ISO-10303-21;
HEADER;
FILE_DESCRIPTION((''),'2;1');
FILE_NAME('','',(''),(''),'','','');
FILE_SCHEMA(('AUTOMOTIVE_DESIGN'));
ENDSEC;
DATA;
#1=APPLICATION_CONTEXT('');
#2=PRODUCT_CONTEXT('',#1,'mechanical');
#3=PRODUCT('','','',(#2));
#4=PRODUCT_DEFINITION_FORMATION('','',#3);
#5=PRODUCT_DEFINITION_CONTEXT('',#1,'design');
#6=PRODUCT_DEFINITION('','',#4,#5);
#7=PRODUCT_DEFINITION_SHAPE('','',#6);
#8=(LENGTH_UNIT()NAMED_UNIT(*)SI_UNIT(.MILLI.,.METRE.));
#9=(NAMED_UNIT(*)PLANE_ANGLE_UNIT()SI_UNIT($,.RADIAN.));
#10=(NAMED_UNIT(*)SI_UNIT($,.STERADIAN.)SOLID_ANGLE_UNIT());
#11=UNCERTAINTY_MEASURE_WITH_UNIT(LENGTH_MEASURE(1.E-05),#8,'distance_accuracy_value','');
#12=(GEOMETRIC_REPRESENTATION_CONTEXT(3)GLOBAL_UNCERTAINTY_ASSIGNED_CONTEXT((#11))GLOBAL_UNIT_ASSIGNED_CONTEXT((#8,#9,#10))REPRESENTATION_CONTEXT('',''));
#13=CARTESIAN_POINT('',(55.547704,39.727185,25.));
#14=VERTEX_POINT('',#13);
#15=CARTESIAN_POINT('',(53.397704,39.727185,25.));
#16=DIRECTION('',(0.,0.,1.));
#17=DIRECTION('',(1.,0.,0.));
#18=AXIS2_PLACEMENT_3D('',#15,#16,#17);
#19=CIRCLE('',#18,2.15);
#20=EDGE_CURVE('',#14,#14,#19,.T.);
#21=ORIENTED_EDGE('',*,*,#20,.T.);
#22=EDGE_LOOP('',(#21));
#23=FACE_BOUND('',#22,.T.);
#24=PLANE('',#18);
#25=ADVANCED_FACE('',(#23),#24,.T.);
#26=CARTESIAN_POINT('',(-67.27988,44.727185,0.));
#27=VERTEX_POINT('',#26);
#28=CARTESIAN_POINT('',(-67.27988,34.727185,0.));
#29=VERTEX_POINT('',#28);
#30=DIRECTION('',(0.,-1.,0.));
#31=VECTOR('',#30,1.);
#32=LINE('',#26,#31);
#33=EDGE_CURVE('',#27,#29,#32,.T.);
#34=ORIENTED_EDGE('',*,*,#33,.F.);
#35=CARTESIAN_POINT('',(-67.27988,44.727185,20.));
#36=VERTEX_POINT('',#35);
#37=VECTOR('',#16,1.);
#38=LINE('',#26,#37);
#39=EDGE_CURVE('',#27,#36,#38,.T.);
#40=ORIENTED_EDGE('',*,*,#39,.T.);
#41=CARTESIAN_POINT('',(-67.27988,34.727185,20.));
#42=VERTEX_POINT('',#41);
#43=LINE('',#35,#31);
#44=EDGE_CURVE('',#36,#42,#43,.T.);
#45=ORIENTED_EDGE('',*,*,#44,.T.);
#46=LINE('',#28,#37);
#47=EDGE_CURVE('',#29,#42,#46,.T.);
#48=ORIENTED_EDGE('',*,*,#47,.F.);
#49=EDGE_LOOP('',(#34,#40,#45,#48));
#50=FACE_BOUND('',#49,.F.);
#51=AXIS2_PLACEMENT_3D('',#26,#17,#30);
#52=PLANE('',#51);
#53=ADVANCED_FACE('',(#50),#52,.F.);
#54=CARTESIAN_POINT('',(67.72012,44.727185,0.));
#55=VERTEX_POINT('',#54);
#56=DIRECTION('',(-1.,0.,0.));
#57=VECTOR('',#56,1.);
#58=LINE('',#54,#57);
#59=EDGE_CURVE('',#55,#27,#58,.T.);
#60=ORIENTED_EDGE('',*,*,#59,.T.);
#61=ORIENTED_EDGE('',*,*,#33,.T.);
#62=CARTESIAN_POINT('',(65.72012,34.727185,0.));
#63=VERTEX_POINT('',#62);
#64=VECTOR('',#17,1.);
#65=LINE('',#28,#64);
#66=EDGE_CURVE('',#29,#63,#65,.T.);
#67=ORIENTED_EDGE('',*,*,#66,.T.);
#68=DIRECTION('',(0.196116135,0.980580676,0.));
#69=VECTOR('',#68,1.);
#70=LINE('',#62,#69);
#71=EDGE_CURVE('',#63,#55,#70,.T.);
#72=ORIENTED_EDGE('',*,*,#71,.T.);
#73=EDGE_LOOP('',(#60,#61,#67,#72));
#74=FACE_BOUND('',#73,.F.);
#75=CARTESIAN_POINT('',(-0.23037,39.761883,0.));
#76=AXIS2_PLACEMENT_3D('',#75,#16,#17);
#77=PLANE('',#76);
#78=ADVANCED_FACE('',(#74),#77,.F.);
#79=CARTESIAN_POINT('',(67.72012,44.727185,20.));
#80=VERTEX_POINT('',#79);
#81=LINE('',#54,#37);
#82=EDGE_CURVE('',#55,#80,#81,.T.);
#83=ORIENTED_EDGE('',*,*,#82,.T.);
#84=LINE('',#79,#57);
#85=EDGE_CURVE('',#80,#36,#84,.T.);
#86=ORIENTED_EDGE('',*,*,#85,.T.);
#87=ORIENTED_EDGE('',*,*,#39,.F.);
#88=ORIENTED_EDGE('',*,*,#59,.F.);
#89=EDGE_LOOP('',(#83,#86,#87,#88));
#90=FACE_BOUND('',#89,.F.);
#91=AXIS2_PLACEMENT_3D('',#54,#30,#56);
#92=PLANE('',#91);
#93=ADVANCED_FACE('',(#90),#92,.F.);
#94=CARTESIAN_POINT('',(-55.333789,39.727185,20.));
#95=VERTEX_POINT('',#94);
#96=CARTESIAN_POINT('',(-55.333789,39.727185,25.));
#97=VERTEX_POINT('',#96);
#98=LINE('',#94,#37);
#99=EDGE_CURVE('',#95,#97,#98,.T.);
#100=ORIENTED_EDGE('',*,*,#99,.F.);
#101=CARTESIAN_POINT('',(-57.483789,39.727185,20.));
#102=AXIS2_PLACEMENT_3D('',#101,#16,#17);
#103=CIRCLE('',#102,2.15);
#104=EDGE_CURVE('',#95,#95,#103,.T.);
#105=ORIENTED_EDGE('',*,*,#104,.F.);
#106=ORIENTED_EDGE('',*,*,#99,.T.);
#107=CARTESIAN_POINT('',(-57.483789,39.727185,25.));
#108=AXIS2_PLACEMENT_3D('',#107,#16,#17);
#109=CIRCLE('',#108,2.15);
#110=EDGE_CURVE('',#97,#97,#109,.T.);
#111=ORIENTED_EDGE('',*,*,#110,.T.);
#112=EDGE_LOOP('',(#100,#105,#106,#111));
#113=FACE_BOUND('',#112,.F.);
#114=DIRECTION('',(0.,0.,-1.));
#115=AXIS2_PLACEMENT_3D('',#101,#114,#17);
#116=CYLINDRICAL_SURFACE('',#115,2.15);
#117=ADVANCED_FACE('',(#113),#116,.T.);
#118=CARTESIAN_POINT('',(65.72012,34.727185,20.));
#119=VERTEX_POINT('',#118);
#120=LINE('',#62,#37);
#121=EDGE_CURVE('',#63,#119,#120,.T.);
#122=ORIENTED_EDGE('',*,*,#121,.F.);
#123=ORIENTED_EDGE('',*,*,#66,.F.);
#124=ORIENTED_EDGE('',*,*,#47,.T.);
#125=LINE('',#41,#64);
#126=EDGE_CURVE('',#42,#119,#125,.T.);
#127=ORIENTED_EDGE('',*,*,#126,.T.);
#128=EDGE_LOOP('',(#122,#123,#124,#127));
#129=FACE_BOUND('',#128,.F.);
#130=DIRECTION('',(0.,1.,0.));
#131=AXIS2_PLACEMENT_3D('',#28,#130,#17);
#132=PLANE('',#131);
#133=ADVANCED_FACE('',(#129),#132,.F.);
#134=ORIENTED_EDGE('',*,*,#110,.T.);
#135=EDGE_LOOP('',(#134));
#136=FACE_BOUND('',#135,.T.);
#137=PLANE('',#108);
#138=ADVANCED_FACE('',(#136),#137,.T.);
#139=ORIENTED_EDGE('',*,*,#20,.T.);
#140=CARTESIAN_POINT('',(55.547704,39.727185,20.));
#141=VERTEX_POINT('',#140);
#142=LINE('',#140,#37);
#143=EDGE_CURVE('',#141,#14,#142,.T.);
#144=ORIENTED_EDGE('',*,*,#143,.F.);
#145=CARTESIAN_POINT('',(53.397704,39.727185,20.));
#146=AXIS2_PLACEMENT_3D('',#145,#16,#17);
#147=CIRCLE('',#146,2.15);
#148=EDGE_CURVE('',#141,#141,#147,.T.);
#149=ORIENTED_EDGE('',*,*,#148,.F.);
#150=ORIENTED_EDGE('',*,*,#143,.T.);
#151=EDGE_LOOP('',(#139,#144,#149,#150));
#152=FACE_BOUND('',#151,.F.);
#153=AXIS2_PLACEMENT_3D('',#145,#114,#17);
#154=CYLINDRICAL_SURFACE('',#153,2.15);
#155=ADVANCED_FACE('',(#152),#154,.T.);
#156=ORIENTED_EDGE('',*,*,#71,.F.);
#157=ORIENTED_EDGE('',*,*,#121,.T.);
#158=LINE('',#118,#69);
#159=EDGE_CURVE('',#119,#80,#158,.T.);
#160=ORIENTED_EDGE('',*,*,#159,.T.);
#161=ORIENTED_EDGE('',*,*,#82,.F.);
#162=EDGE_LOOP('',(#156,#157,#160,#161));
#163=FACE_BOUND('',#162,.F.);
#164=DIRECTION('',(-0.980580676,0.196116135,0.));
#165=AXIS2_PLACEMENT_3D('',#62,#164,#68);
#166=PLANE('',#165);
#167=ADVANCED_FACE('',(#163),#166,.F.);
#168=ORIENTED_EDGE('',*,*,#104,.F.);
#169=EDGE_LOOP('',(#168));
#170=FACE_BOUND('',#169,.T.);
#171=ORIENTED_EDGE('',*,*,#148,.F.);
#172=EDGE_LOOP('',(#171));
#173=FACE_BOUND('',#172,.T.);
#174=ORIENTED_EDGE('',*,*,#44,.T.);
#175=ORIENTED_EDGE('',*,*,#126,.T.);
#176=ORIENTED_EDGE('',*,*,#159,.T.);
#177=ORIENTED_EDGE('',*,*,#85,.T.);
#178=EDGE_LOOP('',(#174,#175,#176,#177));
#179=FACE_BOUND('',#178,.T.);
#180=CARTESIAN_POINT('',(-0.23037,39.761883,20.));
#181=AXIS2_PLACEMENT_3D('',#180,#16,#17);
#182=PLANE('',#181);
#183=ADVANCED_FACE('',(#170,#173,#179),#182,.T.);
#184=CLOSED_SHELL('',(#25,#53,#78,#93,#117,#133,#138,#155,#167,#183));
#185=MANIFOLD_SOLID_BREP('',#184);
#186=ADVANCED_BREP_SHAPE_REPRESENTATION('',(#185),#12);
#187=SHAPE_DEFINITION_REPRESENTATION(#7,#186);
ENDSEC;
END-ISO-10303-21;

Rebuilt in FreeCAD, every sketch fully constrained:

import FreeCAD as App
import Part
import Sketcher
from FreeCAD import Vector
Q = App.Units.Quantity


def add_polygon(sketch, points):
    """Adds a closed chain of lines whose ends are joined by coincident constraints."""
    first, n = sketch.GeometryCount, len(points)
    for a, b in zip(points, points[1:] + points[:1]):
        sketch.addGeometry(Part.LineSegment(App.Vector(*a, 0), App.Vector(*b, 0)), False)
    for i in range(n):
        sketch.addConstraint(Sketcher.Constraint("Coincident", first + i, 2, first + (i + 1) % n, 1))

doc = App.newDocument("Part")
body = doc.addObject("PartDesign::Body", "Body")

sketch1 = body.newObject("Sketcher::SketchObject", "Sketch")
sketch1.AttachmentSupport = (doc.getObject("XY_Plane"), [""])
sketch1.MapMode = "FlatFace"
add_polygon(sketch1, [(68, 45), (-67, 45), (-67, 35), (66, 35)])
sketch1.addConstraint([
    Sketcher.Constraint("Horizontal", 0),
    Sketcher.Constraint("Vertical", 1),
    Sketcher.Constraint("Horizontal", 2),
    Sketcher.Constraint("DistanceX", 0, 2, 0, 1, Q("135 mm")),
    Sketcher.Constraint("DistanceX", 2, 1, 2, 2, Q("133 mm")),
    Sketcher.Constraint("DistanceY", 1, 2, 1, 1, Q("10 mm")),
    Sketcher.Constraint("DistanceX", 0, 2, -1, 1, Q("67.27988 mm")),
    Sketcher.Constraint("DistanceY", -1, 1, 0, 2, Q("44.727185 mm")),
])
pad1 = body.newObject("PartDesign::Pad", "Pad")
pad1.Profile = sketch1
pad1.Length = 20

sketch2 = body.newObject("Sketcher::SketchObject", "Sketch001")
sketch2.AttachmentSupport = (doc.getObject("XY_Plane"), [""])
sketch2.MapMode = "FlatFace"
sketch2.AttachmentOffset = App.Placement(Vector(0, 0, 20), App.Rotation())
sketch2.addGeometry([
    Part.Circle(Vector(-57.5, 39.7, 0), Vector(0, 0, 1), 2.1),
    Part.Circle(Vector(53.4, 39.7, 0), Vector(0, 0, 1), 2.1),
], False)
sketch2.addConstraint([
    Sketcher.Constraint("Equal", 0, 1),
    Sketcher.Constraint("Horizontal", 0, 3, 1, 3),
    Sketcher.Constraint("Diameter", 0, Q("4.3 mm")),
    Sketcher.Constraint("DistanceX", 0, 3, -1, 1, Q("57.483789 mm")),
    Sketcher.Constraint("DistanceY", -1, 1, 0, 3, Q("39.727185 mm")),
    Sketcher.Constraint("DistanceX", -1, 1, 1, 3, Q("53.397704 mm")),
])
pad2 = body.newObject("PartDesign::Pad", "Pad001")
pad2.Profile = sketch2
pad2.Length = 5

doc.recompute()
